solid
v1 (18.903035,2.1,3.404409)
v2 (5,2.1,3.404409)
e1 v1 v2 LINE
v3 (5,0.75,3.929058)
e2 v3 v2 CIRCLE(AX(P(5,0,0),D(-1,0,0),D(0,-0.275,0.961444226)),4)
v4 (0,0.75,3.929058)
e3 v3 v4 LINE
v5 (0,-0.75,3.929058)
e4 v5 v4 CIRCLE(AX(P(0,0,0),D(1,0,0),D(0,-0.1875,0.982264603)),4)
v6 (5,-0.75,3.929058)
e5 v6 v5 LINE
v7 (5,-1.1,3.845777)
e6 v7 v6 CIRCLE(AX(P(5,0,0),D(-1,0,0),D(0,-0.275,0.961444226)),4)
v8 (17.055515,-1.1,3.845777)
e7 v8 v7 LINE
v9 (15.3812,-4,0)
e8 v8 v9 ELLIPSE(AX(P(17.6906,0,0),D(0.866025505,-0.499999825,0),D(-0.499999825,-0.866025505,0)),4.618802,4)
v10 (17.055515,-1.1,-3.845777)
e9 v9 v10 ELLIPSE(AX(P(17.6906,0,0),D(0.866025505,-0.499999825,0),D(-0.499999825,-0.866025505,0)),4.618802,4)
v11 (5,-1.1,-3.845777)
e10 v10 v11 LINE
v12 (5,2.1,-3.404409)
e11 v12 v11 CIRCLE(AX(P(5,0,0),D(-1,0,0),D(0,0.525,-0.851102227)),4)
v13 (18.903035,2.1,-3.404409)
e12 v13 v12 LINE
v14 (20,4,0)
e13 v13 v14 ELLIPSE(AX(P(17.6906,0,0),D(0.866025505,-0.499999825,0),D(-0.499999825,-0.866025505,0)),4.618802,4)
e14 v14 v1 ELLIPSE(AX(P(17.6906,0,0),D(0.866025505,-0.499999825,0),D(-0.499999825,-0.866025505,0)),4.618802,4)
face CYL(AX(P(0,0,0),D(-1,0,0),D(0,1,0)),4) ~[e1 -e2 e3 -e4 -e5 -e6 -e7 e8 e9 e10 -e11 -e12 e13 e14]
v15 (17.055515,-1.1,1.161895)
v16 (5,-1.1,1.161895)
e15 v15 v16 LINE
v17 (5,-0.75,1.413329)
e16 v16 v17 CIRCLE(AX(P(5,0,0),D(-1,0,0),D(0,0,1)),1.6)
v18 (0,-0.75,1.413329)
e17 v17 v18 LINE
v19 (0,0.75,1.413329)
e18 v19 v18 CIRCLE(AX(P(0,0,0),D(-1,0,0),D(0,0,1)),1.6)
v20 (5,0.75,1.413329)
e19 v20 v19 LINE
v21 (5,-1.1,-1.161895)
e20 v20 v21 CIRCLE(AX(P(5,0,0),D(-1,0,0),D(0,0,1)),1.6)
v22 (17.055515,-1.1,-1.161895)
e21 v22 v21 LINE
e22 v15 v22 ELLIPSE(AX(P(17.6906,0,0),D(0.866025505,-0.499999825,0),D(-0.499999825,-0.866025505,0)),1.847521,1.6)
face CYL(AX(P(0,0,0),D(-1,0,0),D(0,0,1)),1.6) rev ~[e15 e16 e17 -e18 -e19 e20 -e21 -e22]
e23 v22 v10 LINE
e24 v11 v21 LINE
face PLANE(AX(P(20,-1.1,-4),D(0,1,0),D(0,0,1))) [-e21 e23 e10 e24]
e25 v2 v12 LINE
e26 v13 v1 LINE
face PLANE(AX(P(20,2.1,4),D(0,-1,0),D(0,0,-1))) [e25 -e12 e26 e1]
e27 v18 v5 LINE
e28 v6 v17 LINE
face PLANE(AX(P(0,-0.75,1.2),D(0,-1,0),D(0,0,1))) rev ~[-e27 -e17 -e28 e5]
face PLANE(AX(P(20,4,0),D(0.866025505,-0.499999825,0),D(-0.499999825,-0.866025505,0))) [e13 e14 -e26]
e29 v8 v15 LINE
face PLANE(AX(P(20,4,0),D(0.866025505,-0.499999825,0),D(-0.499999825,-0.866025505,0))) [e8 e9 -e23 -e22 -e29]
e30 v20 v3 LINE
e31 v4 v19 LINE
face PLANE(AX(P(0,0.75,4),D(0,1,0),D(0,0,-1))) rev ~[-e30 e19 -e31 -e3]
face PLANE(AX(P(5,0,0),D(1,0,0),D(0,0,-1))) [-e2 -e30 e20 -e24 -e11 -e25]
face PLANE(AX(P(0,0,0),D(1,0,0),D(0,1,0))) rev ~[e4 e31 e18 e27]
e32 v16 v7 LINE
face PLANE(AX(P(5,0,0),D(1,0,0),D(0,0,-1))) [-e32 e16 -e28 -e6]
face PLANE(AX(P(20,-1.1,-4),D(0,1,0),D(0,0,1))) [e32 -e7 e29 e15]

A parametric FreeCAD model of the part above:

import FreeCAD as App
import Part
import Sketcher
Q = App.Units.Quantity


def add_polygon(sketch, points):
    """Adds a closed chain of lines whose ends are joined by coincident constraints."""
    first, n = sketch.GeometryCount, len(points)
    for a, b in zip(points, points[1:] + points[:1]):
        sketch.addGeometry(Part.LineSegment(App.Vector(*a, 0), App.Vector(*b, 0)), False)
    for i in range(n):
        sketch.addConstraint(Sketcher.Constraint("Coincident", first + i, 2, first + (i + 1) % n, 1))

doc = App.newDocument("Part")
params = doc.addObject("Spreadsheet::Sheet", "Params")
for row, (alias, value) in enumerate([
    ("sketch1_diameter", "8 mm"),
    ("pad1_length", "20 mm"),
    ("sketch2_height", "8 mm"),
    ("sketch2_width", "3.2 mm"),
    ("pocket1_length", "15 mm"),
    ("sketch3_diameter", "3.2 mm"),
    ("sketch4_height", "8 mm"),
    ("sketch5_width", "1.5 mm"),
    ("pocket4_length", "10 mm"),
], start=1):
    params.set(f"A{row}", alias)
    params.set(f"B{row}", "=" + value)
    params.setAlias(f"B{row}", alias)

body = doc.addObject("PartDesign::Body", "Body")

# Sketch on YZ plane
sketch1 = doc.addObject("Sketcher::SketchObject", "Sketch")
body.addObject(sketch1)
sketch1.AttachmentSupport = (doc.YZ_Plane, [""])
sketch1.MapMode = "FlatFace"
sketch1.addGeometry(Part.Circle(App.Vector(0, 0, 0), App.Vector(0, 0, 1), 4), False)
sketch1.addConstraint([
    Sketcher.Constraint("Coincident", 0, 3, -1, 1),
    Sketcher.Constraint("Diameter", 0, Q("8 mm")),
])
sketch1.setExpression("Constraints[1]", "Params.sketch1_diameter")
pad1 = doc.addObject("PartDesign::Pad", "Pad")
body.addObject(pad1)
pad1.Profile = sketch1
pad1.setExpression("Length", "Params.pad1_length")

# Sketch on YZ plane
sketch2 = doc.addObject("Sketcher::SketchObject", "Sketch001")
body.addObject(sketch2)
sketch2.AttachmentSupport = (doc.YZ_Plane, [""])
sketch2.MapMode = "FlatFace"
sketch2.AttachmentOffset = App.Placement(App.Vector(0, 0, 20), App.Rotation())
add_polygon(sketch2, [(2.1, -4), (2.1, 4), (-1.1, 4), (-1.1, -4)])  # lines 0-3
sketch2.addConstraint([
    Sketcher.Constraint("Vertical", 0),
    Sketcher.Constraint("Horizontal", 1),
    Sketcher.Constraint("Vertical", 2),
    Sketcher.Constraint("Horizontal", 3),
    Sketcher.Constraint("DistanceY", 0, 1, 0, 2, Q("8 mm")),
    Sketcher.Constraint("DistanceX", 1, 2, 1, 1, Q("3.2 mm")),
    Sketcher.Constraint("DistanceY", -1, 1, 0, 2, Q("4 mm")),
    Sketcher.Constraint("DistanceX", -1, 1, 0, 2, Q("2.1 mm")),
])
sketch2.setExpression("Constraints[8]", "Params.sketch2_height")
sketch2.setExpression("Constraints[9]", "Params.sketch2_width")
pocket1 = doc.addObject("PartDesign::Pocket", "Pocket")
body.addObject(pocket1)
pocket1.Profile = sketch2
pocket1.setExpression("Length", "Params.pocket1_length")

# Sketch on YZ plane
sketch3 = doc.addObject("Sketcher::SketchObject", "Sketch002")
body.addObject(sketch3)
sketch3.AttachmentSupport = (doc.YZ_Plane, [""])
sketch3.MapMode = "FlatFace"
sketch3.addGeometry(Part.Circle(App.Vector(0, 0, 0), App.Vector(0, 0, 1), 1.6), False)
sketch3.addConstraint([
    Sketcher.Constraint("Coincident", 0, 3, -1, 1),
    Sketcher.Constraint("Diameter", 0, Q("3.2 mm")),
])
sketch3.setExpression("Constraints[1]", "Params.sketch3_diameter")
pocket2 = doc.addObject("PartDesign::Pocket", "Pocket001")
body.addObject(pocket2)
pocket2.Profile = sketch3
pocket2.Type = "ThroughAll"
pocket2.Reversed = True

# Sketch on XY plane
sketch4 = doc.addObject("Sketcher::SketchObject", "Sketch003")
body.addObject(sketch4)
sketch4.AttachmentSupport = (doc.XY_Plane, [""])
sketch4.MapMode = "FlatFace"
add_polygon(sketch4, [(20, -4), (20, 4), (15.4, -4)])  # lines 0-2
sketch4.addConstraint([
    Sketcher.Constraint("Vertical", 0),
    Sketcher.Constraint("Horizontal", 2),
    Sketcher.Constraint("Angle", 1, Q("-120 deg")),
    Sketcher.Constraint("DistanceY", 0, 1, 0, 2, Q("8 mm")),
    Sketcher.Constraint("DistanceX", -1, 1, 0, 2, Q("20 mm")),
    Sketcher.Constraint("DistanceY", -1, 1, 0, 2, Q("4 mm")),
])
sketch4.setExpression("Constraints[6]", "Params.sketch4_height")
pocket3 = doc.addObject("PartDesign::Pocket", "Pocket002")
body.addObject(pocket3)
pocket3.Profile = sketch4
pocket3.Type = "ThroughAll"
pocket3.Midplane = True

# Sketch on YZ plane
sketch5 = doc.addObject("Sketcher::SketchObject", "Sketch004")
body.addObject(sketch5)
sketch5.AttachmentSupport = (doc.YZ_Plane, [""])
sketch5.MapMode = "FlatFace"
add_polygon(sketch5, [(-0.8, 4), (0.8, 4), (0.8, 1.2), (-0.8, 1.2)])  # lines 0-3
sketch5.addConstraint([
    Sketcher.Constraint("Horizontal", 0),
    Sketcher.Constraint("Vertical", 1),
    Sketcher.Constraint("Horizontal", 2),
    Sketcher.Constraint("Vertical", 3),
    Sketcher.Constraint("DistanceX", 0, 1, 0, 2, Q("1.5 mm")),
    Sketcher.Constraint("DistanceY", -1, 1, 0, 2, Q("4 mm")),
    Sketcher.Constraint("DistanceY", -1, 1, 1, 2, Q("1.2 mm")),
    Sketcher.Constraint("DistanceX", -1, 1, 0, 2, Q("0.75 mm")),
])
sketch5.setExpression("Constraints[8]", "Params.sketch5_width")
pocket4 = doc.addObject("PartDesign::Pocket", "Pocket003")
body.addObject(pocket4)
pocket4.Profile = sketch5
pocket4.setExpression("Length", "Params.pocket4_length")
pocket4.Reversed = True

doc.recompute()
